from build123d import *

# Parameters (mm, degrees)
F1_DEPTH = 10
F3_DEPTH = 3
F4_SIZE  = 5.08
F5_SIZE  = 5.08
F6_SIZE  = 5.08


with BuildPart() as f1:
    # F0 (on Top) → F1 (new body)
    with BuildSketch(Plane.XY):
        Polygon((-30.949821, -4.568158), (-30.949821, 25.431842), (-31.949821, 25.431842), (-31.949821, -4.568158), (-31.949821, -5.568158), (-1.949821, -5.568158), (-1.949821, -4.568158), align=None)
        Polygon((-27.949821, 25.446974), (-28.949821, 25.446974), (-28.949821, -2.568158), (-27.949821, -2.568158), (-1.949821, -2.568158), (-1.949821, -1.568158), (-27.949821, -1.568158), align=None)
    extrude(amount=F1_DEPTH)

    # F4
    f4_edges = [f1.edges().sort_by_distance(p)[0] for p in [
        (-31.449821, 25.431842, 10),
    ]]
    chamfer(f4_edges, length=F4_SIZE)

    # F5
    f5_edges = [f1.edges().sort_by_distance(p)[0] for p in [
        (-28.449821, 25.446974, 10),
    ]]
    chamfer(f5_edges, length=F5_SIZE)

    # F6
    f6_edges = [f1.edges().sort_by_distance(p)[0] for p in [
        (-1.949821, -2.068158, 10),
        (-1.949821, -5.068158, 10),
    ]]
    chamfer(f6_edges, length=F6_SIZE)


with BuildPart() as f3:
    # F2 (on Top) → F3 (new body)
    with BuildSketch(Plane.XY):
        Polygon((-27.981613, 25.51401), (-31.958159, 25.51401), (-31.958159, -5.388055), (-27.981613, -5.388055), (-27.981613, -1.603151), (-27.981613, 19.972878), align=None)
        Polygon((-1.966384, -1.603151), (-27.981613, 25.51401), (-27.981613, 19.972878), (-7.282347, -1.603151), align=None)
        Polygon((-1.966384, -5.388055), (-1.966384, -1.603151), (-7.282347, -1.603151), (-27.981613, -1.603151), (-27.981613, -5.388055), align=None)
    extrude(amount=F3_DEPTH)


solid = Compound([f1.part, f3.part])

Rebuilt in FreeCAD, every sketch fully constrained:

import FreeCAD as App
import Part
import Sketcher
from FreeCAD import Vector
Q = App.Units.Quantity


def edges_at(feature, points):
    """Names of the edges that pass closest to the given points."""
    edges = feature.Shape.Edges
    near = lambda p: min(range(len(edges)), key=lambda i: edges[i].distToShape(Part.Vertex(*p))[0])
    return sorted({f"Edge{near(p) + 1}" for p in points})


def add_polygon(sketch, points):
    """Adds a closed chain of lines whose ends are joined by coincident constraints."""
    first, n = sketch.GeometryCount, len(points)
    for a, b in zip(points, points[1:] + points[:1]):
        sketch.addGeometry(Part.LineSegment(App.Vector(*a, 0), App.Vector(*b, 0)), False)
    for i in range(n):
        sketch.addConstraint(Sketcher.Constraint("Coincident", first + i, 2, first + (i + 1) % n, 1))

doc = App.newDocument("Part")
body = doc.addObject("PartDesign::Body", "Body")
body.AllowCompound = True

# Sketch on XY plane
sketch1 = body.newObject("Sketcher::SketchObject", "Sketch")
sketch1.AttachmentSupport = (doc.getObject("XY_Plane"), [""])
sketch1.MapMode = "FlatFace"
add_polygon(sketch1, [(-30.949821, -4.568158), (-30.949821, 25.431842), (-31.949821, 25.431842), (-31.949821, -5.568158), (-1.949821, -5.568158), (-1.949821, -4.568158)])  # lines 0-5
add_polygon(sketch1, [(-27.949821, 25.446974), (-28.949821, 25.446974), (-28.949821, -2.568158), (-1.949821, -2.568158), (-1.949821, -1.568158), (-27.949821, -1.568158)])  # lines 6-11
sketch1.addConstraint([
    Sketcher.Constraint("Vertical", 0),
    Sketcher.Constraint("Horizontal", 1),
    Sketcher.Constraint("Vertical", 2),
    Sketcher.Constraint("Horizontal", 3),
    Sketcher.Constraint("Vertical", 4),
    Sketcher.Constraint("Horizontal", 5),
    Sketcher.Constraint("Horizontal", 6),
    Sketcher.Constraint("Vertical", 7),
    Sketcher.Constraint("Horizontal", 8),
    Sketcher.Constraint("Vertical", 9),
    Sketcher.Constraint("Horizontal", 10),
    Sketcher.Constraint("Vertical", 11),
    Sketcher.Constraint("Vertical", 4, 2, 8, 2),
    Sketcher.Constraint("Equal", 1, 6),
    Sketcher.Constraint("Equal", 3, 0),
    Sketcher.Constraint("Equal", 6, 4),
    Sketcher.Constraint("Equal", 4, 9),
    Sketcher.Constraint("DistanceX", 1, 2, 1, 1, Q("1 mm")),
    Sketcher.Constraint("DistanceX", 3, 1, 3, 2, Q("30 mm")),
    Sketcher.Constraint("DistanceX", 8, 1, 8, 2, Q("27 mm")),
    Sketcher.Constraint("DistanceY", 5, 2, 7, 2, Q("2 mm")),
    Sketcher.Constraint("DistanceY", 7, 2, 7, 1, Q("28.015132 mm")),
    Sketcher.Constraint("DistanceX", 0, 2, -1, 1, Q("30.949821 mm")),
    Sketcher.Constraint("DistanceY", -1, 1, 0, 2, Q("25.431842 mm")),
])
pad1 = body.newObject("PartDesign::Pad", "Pad")
pad1.Profile = sketch1
pad1.Length = 10
doc.recompute()

chamfer = body.newObject("PartDesign::Chamfer", "Chamfer")
chamfer.Base = (pad1, edges_at(pad1, [(-31.45, 25.432, 10)]))
chamfer.Size = 5.08
doc.recompute()

chamfer2 = body.newObject("PartDesign::Chamfer", "Chamfer001")
chamfer2.Base = (chamfer, edges_at(chamfer, [(-28.45, 25.447, 10)]))
chamfer2.Size = 5.08
doc.recompute()

chamfer3 = body.newObject("PartDesign::Chamfer", "Chamfer002")
chamfer3.Base = (chamfer2, edges_at(chamfer2, [(-1.95, -2.068, 10), (-1.95, -5.068, 10)]))
chamfer3.Size = 5.08
body2 = doc.addObject("PartDesign::Body", "Body001")

# Sketch on XY plane
sketch2 = body2.newObject("Sketcher::SketchObject", "Sketch001")
sketch2.AttachmentSupport = (doc.getObject("XY_Plane001"), [""])
sketch2.MapMode = "FlatFace"
add_polygon(sketch2, [(-27.981613, 25.51401), (-31.958159, 25.51401), (-31.958159, -5.388055), (-1.966384, -5.388055), (-1.966384, -1.603151)])  # lines 0-4
add_polygon(sketch2, [(-27.981613, -1.603151), (-27.981613, 19.972878), (-7.282347, -1.603151)])  # lines 5-7
sketch2.addConstraint([
    Sketcher.Constraint("Horizontal", 0),
    Sketcher.Constraint("Vertical", 1),
    Sketcher.Constraint("Horizontal", 2),
    Sketcher.Constraint("Vertical", 3),
    Sketcher.Constraint("Vertical", 5),
    Sketcher.Constraint("Horizontal", 7),
    Sketcher.Constraint("Parallel", 4, 6),
    Sketcher.Constraint("Horizontal", 3, 2, 6, 2),
    Sketcher.Constraint("Vertical", 4, 2, 5, 2),
    Sketcher.Constraint("DistanceY", 5, 1, 5, 2, Q("21.576029 mm")),
    Sketcher.Constraint("DistanceX", 0, 2, 0, 1, Q("3.976546 mm")),
    Sketcher.Constraint("DistanceX", 2, 1, 2, 2, Q("29.991775 mm")),
    Sketcher.Constraint("DistanceX", 7, 2, 7, 1, Q("20.699266 mm")),
    Sketcher.Constraint("DistanceY", 1, 2, 1, 1, Q("30.902065 mm")),
    Sketcher.Constraint("DistanceX", 0, 2, -1, 1, Q("31.958159 mm")),
    Sketcher.Constraint("DistanceY", -1, 1, 0, 2, Q("25.51401 mm")),
])
pad2 = body2.newObject("PartDesign::Pad", "Pad001")
pad2.Profile = sketch2
pad2.Length = 3

doc.recompute()
